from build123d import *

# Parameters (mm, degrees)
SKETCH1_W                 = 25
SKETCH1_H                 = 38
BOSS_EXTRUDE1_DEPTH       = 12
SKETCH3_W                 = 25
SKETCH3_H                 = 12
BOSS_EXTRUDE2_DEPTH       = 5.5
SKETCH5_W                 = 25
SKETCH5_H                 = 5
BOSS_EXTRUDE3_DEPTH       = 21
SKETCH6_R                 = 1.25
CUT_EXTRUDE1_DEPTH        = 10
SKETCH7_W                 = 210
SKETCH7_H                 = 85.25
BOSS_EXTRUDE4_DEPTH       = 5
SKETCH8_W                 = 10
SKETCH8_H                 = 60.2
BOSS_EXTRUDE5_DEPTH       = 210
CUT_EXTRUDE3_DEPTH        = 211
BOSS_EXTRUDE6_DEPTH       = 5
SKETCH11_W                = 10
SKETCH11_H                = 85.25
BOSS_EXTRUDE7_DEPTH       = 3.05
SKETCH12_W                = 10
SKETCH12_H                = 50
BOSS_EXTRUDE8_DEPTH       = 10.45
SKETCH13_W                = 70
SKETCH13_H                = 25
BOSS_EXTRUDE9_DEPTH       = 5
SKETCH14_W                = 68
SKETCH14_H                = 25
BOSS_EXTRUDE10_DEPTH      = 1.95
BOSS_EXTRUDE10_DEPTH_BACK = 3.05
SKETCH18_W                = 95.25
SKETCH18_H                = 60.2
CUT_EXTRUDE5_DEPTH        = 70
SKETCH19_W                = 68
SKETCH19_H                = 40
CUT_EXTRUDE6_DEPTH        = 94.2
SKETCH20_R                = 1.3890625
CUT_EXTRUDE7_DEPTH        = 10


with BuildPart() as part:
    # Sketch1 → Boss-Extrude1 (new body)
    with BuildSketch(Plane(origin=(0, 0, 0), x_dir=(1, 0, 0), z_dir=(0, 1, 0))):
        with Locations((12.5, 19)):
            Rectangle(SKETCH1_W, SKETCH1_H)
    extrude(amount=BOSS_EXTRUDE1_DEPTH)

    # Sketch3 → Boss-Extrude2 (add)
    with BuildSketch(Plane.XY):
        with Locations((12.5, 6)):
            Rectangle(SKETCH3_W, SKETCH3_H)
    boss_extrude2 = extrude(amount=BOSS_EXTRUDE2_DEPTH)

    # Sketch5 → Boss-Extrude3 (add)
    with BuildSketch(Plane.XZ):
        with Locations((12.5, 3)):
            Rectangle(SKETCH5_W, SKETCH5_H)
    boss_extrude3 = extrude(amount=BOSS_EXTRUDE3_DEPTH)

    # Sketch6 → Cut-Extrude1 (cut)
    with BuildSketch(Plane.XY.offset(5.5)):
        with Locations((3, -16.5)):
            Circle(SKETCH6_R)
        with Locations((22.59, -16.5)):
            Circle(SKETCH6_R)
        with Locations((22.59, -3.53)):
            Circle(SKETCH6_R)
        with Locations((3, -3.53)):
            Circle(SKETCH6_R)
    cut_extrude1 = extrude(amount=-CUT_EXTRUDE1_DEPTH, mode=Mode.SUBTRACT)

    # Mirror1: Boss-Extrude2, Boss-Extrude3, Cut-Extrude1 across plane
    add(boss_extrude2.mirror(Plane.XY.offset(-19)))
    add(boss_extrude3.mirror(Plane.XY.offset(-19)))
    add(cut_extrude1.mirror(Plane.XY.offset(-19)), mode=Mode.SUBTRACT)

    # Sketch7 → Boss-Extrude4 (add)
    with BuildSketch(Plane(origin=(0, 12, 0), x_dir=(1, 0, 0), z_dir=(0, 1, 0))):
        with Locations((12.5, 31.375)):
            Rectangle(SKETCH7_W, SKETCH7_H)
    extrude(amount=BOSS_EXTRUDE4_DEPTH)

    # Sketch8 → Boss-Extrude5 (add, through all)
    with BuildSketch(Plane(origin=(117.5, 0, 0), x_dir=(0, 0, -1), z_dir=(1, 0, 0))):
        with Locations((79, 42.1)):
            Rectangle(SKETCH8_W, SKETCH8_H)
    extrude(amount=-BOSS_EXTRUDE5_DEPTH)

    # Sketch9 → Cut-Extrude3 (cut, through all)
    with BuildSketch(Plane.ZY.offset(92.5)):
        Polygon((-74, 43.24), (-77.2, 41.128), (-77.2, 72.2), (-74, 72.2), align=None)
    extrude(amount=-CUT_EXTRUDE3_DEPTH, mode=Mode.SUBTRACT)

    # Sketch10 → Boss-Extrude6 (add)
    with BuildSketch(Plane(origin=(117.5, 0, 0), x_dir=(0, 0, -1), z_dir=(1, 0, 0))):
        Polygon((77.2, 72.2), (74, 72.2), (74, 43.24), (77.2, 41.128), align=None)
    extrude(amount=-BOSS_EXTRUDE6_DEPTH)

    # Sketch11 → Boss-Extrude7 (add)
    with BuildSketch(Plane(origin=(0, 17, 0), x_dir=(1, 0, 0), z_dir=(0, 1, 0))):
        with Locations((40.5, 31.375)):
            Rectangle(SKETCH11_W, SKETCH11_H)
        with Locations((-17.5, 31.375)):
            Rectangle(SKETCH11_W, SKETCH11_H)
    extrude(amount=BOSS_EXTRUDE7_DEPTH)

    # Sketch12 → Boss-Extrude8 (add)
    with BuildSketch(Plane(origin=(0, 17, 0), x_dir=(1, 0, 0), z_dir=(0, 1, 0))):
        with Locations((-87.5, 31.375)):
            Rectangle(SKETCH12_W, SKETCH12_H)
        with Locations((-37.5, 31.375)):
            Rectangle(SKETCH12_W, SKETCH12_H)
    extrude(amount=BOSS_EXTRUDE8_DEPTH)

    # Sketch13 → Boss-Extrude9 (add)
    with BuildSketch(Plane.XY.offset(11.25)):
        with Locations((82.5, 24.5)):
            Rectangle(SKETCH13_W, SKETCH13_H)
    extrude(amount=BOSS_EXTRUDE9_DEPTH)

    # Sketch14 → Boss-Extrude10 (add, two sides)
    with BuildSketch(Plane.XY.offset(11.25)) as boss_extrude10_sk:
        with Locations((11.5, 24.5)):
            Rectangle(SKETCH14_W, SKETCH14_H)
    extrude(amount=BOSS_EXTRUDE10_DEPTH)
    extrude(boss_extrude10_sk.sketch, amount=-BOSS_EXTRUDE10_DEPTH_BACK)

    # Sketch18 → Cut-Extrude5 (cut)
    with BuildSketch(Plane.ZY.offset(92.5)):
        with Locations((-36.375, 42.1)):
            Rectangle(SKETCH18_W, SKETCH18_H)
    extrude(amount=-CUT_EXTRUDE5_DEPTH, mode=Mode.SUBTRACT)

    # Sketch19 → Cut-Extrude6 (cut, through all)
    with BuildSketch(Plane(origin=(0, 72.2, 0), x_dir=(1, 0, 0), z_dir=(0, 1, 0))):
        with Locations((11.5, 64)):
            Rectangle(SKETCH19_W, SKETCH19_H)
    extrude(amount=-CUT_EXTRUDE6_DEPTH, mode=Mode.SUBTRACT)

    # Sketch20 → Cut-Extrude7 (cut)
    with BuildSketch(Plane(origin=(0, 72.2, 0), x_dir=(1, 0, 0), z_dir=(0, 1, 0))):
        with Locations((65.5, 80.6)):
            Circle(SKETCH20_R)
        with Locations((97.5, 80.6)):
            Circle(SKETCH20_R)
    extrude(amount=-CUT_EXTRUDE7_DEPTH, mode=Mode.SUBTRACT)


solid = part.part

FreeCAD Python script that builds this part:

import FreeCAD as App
import Part
import Sketcher

V = App.Vector
Q = App.Units.Quantity


def add_polygon(sketch, points):
    """Adds a closed chain of lines whose ends are joined by coincident constraints."""
    first, n = sketch.GeometryCount, len(points)
    for a, b in zip(points, points[1:] + points[:1]):
        sketch.addGeometry(Part.LineSegment(App.Vector(*a, 0), App.Vector(*b, 0)), False)
    for i in range(n):
        sketch.addConstraint(Sketcher.Constraint("Coincident", first + i, 2, first + (i + 1) % n, 1))

doc = App.newDocument("Part")
body = doc.addObject("PartDesign::Body", "Body")

# Sketch on XZ plane
sketch1 = body.newObject("Sketcher::SketchObject", "Sketch")
sketch1.AttachmentSupport = (doc.getObject("XZ_Plane"), [""])
sketch1.MapMode = "FlatFace"
add_polygon(sketch1, [(0, -38), (0, 0), (25, 0), (25, -38)])  # lines 0-3
sketch1.addConstraint([
    Sketcher.Constraint("Vertical", 0),
    Sketcher.Constraint("Horizontal", 1),
    Sketcher.Constraint("Vertical", 2),
    Sketcher.Constraint("Horizontal", 3),
    Sketcher.Constraint("Coincident", 0, 2, -1, 1),
    Sketcher.Constraint("DistanceX", 1, 1, 1, 2, Q("25 mm")),
    Sketcher.Constraint("DistanceY", 0, 1, 0, 2, Q("38 mm")),
])
pad1 = body.newObject("PartDesign::Pad", "Pad")
pad1.Profile = sketch1
pad1.Length = 12
pad1.Reversed = True

# Sketch on XY plane
sketch2 = body.newObject("Sketcher::SketchObject", "Sketch001")
sketch2.AttachmentSupport = (doc.getObject("XY_Plane"), [""])
sketch2.MapMode = "FlatFace"
add_polygon(sketch2, [(0, 12), (0, 0), (25, 0), (25, 12)])  # lines 0-3
sketch2.addConstraint([
    Sketcher.Constraint("Vertical", 0),
    Sketcher.Constraint("Horizontal", 1),
    Sketcher.Constraint("Vertical", 2),
    Sketcher.Constraint("Horizontal", 3),
    Sketcher.Constraint("Coincident", 0, 2, -1, 1),
    Sketcher.Constraint("DistanceX", 1, 1, 1, 2, Q("25 mm")),
    Sketcher.Constraint("DistanceY", 0, 2, 0, 1, Q("12 mm")),
])
pad2 = body.newObject("PartDesign::Pad", "Pad001")
pad2.Profile = sketch2
pad2.Length = 5.5

# Sketch on XZ plane
sketch3 = body.newObject("Sketcher::SketchObject", "Sketch002")
sketch3.AttachmentSupport = (doc.getObject("XZ_Plane"), [""])
sketch3.MapMode = "FlatFace"
add_polygon(sketch3, [(0, 6), (0, 0), (25, 0), (25, 6)])  # lines 0-3
sketch3.addConstraint([
    Sketcher.Constraint("Vertical", 0),
    Sketcher.Constraint("Horizontal", 1),
    Sketcher.Constraint("Vertical", 2),
    Sketcher.Constraint("Horizontal", 3),
    Sketcher.Constraint("PointOnObject", 0, 2, -2),
    Sketcher.Constraint("DistanceX", 1, 1, 1, 2, Q("25 mm")),
    Sketcher.Constraint("DistanceY", 0, 2, 0, 1, Q("5 mm")),
    Sketcher.Constraint("DistanceY", -1, 1, 0, 2, Q("0.5 mm")),
])
pad3 = body.newObject("PartDesign::Pad", "Pad002")
pad3.Profile = sketch3
pad3.Length = 21

# Sketch on XY plane
sketch4 = body.newObject("Sketcher::SketchObject", "Sketch003")
sketch4.AttachmentSupport = (doc.getObject("XY_Plane"), [""])
sketch4.MapMode = "FlatFace"
sketch4.AttachmentOffset = App.Placement(V(0, 0, 5.5), App.Rotation())
sketch4.addGeometry([
    Part.Circle(V(3, -16.5, 0), V(0, 0, 1), 1.2),
    Part.Circle(V(22.6, -16.5, 0), V(0, 0, 1), 1.2),
    Part.Circle(V(22.6, -3.5, 0), V(0, 0, 1), 1.2),
    Part.Circle(V(3, -3.5, 0), V(0, 0, 1), 1.2),
], False)
sketch4.addConstraint([
    Sketcher.Constraint("Equal", 0, 1),
    Sketcher.Constraint("Equal", 1, 2),
    Sketcher.Constraint("Equal", 2, 3),
    Sketcher.Constraint("Horizontal", 0, 3, 1, 3),
    Sketcher.Constraint("Horizontal", 2, 3, 3, 3),
    Sketcher.Constraint("Vertical", 1, 3, 2, 3),
    Sketcher.Constraint("Vertical", 0, 3, 3, 3),
    Sketcher.Constraint("Diameter", 0, Q("2.5 mm")),
    Sketcher.Constraint("DistanceX", -1, 1, 0, 3, Q("3 mm")),
    Sketcher.Constraint("DistanceY", 0, 3, -1, 1, Q("16.5 mm")),
    Sketcher.Constraint("DistanceX", -1, 1, 1, 3, Q("22.59 mm")),
    Sketcher.Constraint("DistanceY", 2, 3, -1, 1, Q("3.53 mm")),
])
pocket1 = body.newObject("PartDesign::Pocket", "Pocket")
pocket1.Profile = sketch4
pocket1.Length = 10
doc.recompute()

datumplane = body.newObject("PartDesign::Plane", "DatumPlane")
datumplane.AttachmentSupport = (doc.getObject("XY_Plane"), [""])
datumplane.MapMode = "FlatFace"
datumplane.AttachmentOffset = App.Placement(V(0, 0, -19), App.Rotation())
mirrored = body.newObject("PartDesign::Mirrored", "Mirrored")
mirrored.Originals = [pad2, pad3, pocket1]
mirrored.MirrorPlane = (datumplane, [""])
body.Tip = mirrored

# Sketch on XZ plane
sketch5 = body.newObject("Sketcher::SketchObject", "Sketch004")
sketch5.AttachmentSupport = (doc.getObject("XZ_Plane"), [""])
sketch5.MapMode = "FlatFace"
sketch5.AttachmentOffset = App.Placement(V(0, 0, -12), App.Rotation())
add_polygon(sketch5, [(-92, -74), (-92, 11), (118, 11), (118, -74)])  # lines 0-3
sketch5.addConstraint([
    Sketcher.Constraint("Vertical", 0),
    Sketcher.Constraint("Horizontal", 1),
    Sketcher.Constraint("Vertical", 2),
    Sketcher.Constraint("Horizontal", 3),
    Sketcher.Constraint("DistanceX", 1, 1, 1, 2, Q("210 mm")),
    Sketcher.Constraint("DistanceY", 2, 2, -1, 1, Q("74 mm")),
    Sketcher.Constraint("DistanceY", 0, 1, 0, 2, Q("85.25 mm")),
    Sketcher.Constraint("DistanceX", 0, 2, -1, 1, Q("92.5 mm")),
])
pad4 = body.newObject("PartDesign::Pad", "Pad003")
pad4.Profile = sketch5
pad4.Length = 5
pad4.Reversed = True

# Sketch on YZ plane
sketch6 = body.newObject("Sketcher::SketchObject", "Sketch005")
sketch6.AttachmentSupport = (doc.getObject("YZ_Plane"), [""])
sketch6.MapMode = "FlatFace"
sketch6.AttachmentOffset = App.Placement(V(0, 0, 117.5), App.Rotation())
add_polygon(sketch6, [(72, -74), (12, -74), (12, -84), (72, -84)])  # lines 0-3
sketch6.addConstraint([
    Sketcher.Constraint("Horizontal", 0),
    Sketcher.Constraint("Vertical", 1),
    Sketcher.Constraint("Horizontal", 2),
    Sketcher.Constraint("Vertical", 3),
    Sketcher.Constraint("DistanceY", 1, 2, 1, 1, Q("10 mm")),
    Sketcher.Constraint("DistanceX", 0, 2, 0, 1, Q("60.2 mm")),
    Sketcher.Constraint("DistanceX", -1, 1, 0, 2, Q("12 mm")),
    Sketcher.Constraint("DistanceY", 0, 2, -1, 1, Q("74 mm")),
])
pad5 = body.newObject("PartDesign::Pad", "Pad004")
pad5.Profile = sketch6
pad5.Length = 210
pad5.Reversed = True

# Sketch on YZ plane
sketch7 = body.newObject("Sketcher::SketchObject", "Sketch006")
sketch7.AttachmentSupport = (doc.getObject("YZ_Plane"), [""])
sketch7.MapMode = "FlatFace"
sketch7.AttachmentOffset = App.Placement(V(0, 0, -92.5), App.Rotation())
add_polygon(sketch7, [(41.1, -77.2), (43.2, -74), (72.2, -74), (72.2, -77.2)])  # lines 0-3
sketch7.addConstraint([
    Sketcher.Constraint("Horizontal", 1),
    Sketcher.Constraint("Vertical", 2),
    Sketcher.Constraint("Horizontal", 3),
    Sketcher.Constraint("DistanceY", 2, 2, 2, 1, Q("3.2 mm")),
    Sketcher.Constraint("DistanceY", 0, 2, -1, 1, Q("74 mm")),
    Sketcher.Constraint("DistanceX", 1, 1, 1, 2, Q("28.96 mm")),
    Sketcher.Constraint("DistanceX", -1, 1, 1, 2, Q("72.2 mm")),
    Sketcher.Constraint("DistanceX", 3, 2, 3, 1, Q("31.072 mm")),
])
pocket2 = body.newObject("PartDesign::Pocket", "Pocket001")
pocket2.Profile = sketch7
pocket2.Type = "ThroughAll"
pocket2.Reversed = True

# Sketch on YZ plane
sketch8 = body.newObject("Sketcher::SketchObject", "Sketch007")
sketch8.AttachmentSupport = (doc.getObject("YZ_Plane"), [""])
sketch8.MapMode = "FlatFace"
sketch8.AttachmentOffset = App.Placement(V(0, 0, 117.5), App.Rotation())
add_polygon(sketch8, [(72.2, -77.2), (72.2, -74), (43.2, -74), (41.1, -77.2)])  # lines 0-3
sketch8.addConstraint([
    Sketcher.Constraint("Vertical", 0),
    Sketcher.Constraint("Horizontal", 1),
    Sketcher.Constraint("Horizontal", 3),
    Sketcher.Constraint("DistanceY", 0, 1, 0, 2, Q("3.2 mm")),
    Sketcher.Constraint("DistanceY", 0, 2, -1, 1, Q("74 mm")),
    Sketcher.Constraint("DistanceX", 1, 2, 1, 1, Q("28.96 mm")),
    Sketcher.Constraint("DistanceX", -1, 1, 0, 2, Q("72.2 mm")),
    Sketcher.Constraint("DistanceX", 3, 1, 3, 2, Q("31.072 mm")),
])
pad6 = body.newObject("PartDesign::Pad", "Pad005")
pad6.Profile = sketch8
pad6.Length = 5
pad6.Reversed = True

# Sketch on XZ plane
sketch9 = body.newObject("Sketcher::SketchObject", "Sketch008")
sketch9.AttachmentSupport = (doc.getObject("XZ_Plane"), [""])
sketch9.MapMode = "FlatFace"
sketch9.AttachmentOffset = App.Placement(V(0, 0, -17), App.Rotation())
add_polygon(sketch9, [(36, -74), (36, 11), (46, 11), (46, -74)])  # lines 0-3
add_polygon(sketch9, [(-22, -74), (-22, 11), (-12, 11), (-12, -74)])  # lines 4-7
sketch9.addConstraint([
    Sketcher.Constraint("Vertical", 0),
    Sketcher.Constraint("Horizontal", 1),
    Sketcher.Constraint("Vertical", 2),
    Sketcher.Constraint("Horizontal", 3),
    Sketcher.Constraint("Vertical", 4),
    Sketcher.Constraint("Horizontal", 5),
    Sketcher.Constraint("Vertical", 6),
    Sketcher.Constraint("Horizontal", 7),
    Sketcher.Constraint("Horizontal", 1, 2, 4, 2),
    Sketcher.Constraint("Horizontal", 3, 2, 6, 2),
    Sketcher.Constraint("Equal", 3, 5),
    Sketcher.Constraint("DistanceX", 1, 1, 1, 2, Q("10 mm")),
    Sketcher.Constraint("DistanceY", 2, 2, -1, 1, Q("74 mm")),
    Sketcher.Constraint("DistanceX", 4, 2, 0, 2, Q("58 mm")),
    Sketcher.Constraint("DistanceY", 0, 1, 0, 2, Q("85.25 mm")),
    Sketcher.Constraint("DistanceX", -1, 1, 0, 2, Q("35.5 mm")),
])
pad7 = body.newObject("PartDesign::Pad", "Pad006")
pad7.Profile = sketch9
pad7.Length = 3.05
pad7.Reversed = True

# Sketch on XZ plane
sketch10 = body.newObject("Sketcher::SketchObject", "Sketch009")
sketch10.AttachmentSupport = (doc.getObject("XZ_Plane"), [""])
sketch10.MapMode = "FlatFace"
sketch10.AttachmentOffset = App.Placement(V(0, 0, -17), App.Rotation())
add_polygon(sketch10, [(-92, -56), (-92, -6), (-82, -6), (-82, -56)])  # lines 0-3
add_polygon(sketch10, [(-42, -56), (-42, -6), (-32, -6), (-32, -56)])  # lines 4-7
sketch10.addConstraint([
    Sketcher.Constraint("Vertical", 0),
    Sketcher.Constraint("Horizontal", 1),
    Sketcher.Constraint("Vertical", 2),
    Sketcher.Constraint("Horizontal", 3),
    Sketcher.Constraint("Vertical", 4),
    Sketcher.Constraint("Horizontal", 5),
    Sketcher.Constraint("Vertical", 6),
    Sketcher.Constraint("Horizontal", 7),
    Sketcher.Constraint("Horizontal", 1, 2, 4, 2),
    Sketcher.Constraint("Horizontal", 3, 2, 6, 2),
    Sketcher.Constraint("Equal", 3, 5),
    Sketcher.Constraint("DistanceX", 1, 1, 1, 2, Q("10 mm")),
    Sketcher.Constraint("DistanceY", 0, 1, 0, 2, Q("50 mm")),
    Sketcher.Constraint("DistanceX", 1, 2, 4, 2, Q("40 mm")),
    Sketcher.Constraint("DistanceX", 0, 2, -1, 1, Q("92.5 mm")),
    Sketcher.Constraint("DistanceY", 0, 2, -1, 1, Q("6.375 mm")),
])
pad8 = body.newObject("PartDesign::Pad", "Pad007")
pad8.Profile = sketch10
pad8.Length = 10.45
pad8.Reversed = True

# Sketch on XY plane
sketch11 = body.newObject("Sketcher::SketchObject", "Sketch010")
sketch11.AttachmentSupport = (doc.getObject("XY_Plane"), [""])
sketch11.MapMode = "FlatFace"
sketch11.AttachmentOffset = App.Placement(V(0, 0, 11.25), App.Rotation())
add_polygon(sketch11, [(48, 37), (48, 12), (118, 12), (118, 37)])  # lines 0-3
sketch11.addConstraint([
    Sketcher.Constraint("Vertical", 0),
    Sketcher.Constraint("Horizontal", 1),
    Sketcher.Constraint("Vertical", 2),
    Sketcher.Constraint("Horizontal", 3),
    Sketcher.Constraint("DistanceX", 1, 1, 1, 2, Q("70 mm")),
    Sketcher.Constraint("DistanceY", 0, 2, 0, 1, Q("25 mm")),
    Sketcher.Constraint("DistanceY", -1, 1, 0, 2, Q("12 mm")),
    Sketcher.Constraint("DistanceX", -1, 1, 0, 2, Q("47.5 mm")),
])
pad9 = body.newObject("PartDesign::Pad", "Pad008")
pad9.Profile = sketch11
pad9.Length = 5

# Sketch on XY plane
sketch12 = body.newObject("Sketcher::SketchObject", "Sketch011")
sketch12.AttachmentSupport = (doc.getObject("XY_Plane"), [""])
sketch12.MapMode = "FlatFace"
sketch12.AttachmentOffset = App.Placement(V(0, 0, 11.25), App.Rotation())
add_polygon(sketch12, [(-22, 37), (-22, 12), (46, 12), (46, 37)])  # lines 0-3
sketch12.addConstraint([
    Sketcher.Constraint("Vertical", 0),
    Sketcher.Constraint("Horizontal", 1),
    Sketcher.Constraint("Vertical", 2),
    Sketcher.Constraint("Horizontal", 3),
    Sketcher.Constraint("DistanceX", 1, 1, 1, 2, Q("68 mm")),
    Sketcher.Constraint("DistanceY", 0, 2, 0, 1, Q("25 mm")),
    Sketcher.Constraint("DistanceY", -1, 1, 0, 2, Q("12 mm")),
    Sketcher.Constraint("DistanceX", 0, 2, -1, 1, Q("22.5 mm")),
])
pad10 = body.newObject("PartDesign::Pad", "Pad009")
pad10.Profile = sketch12
pad10.Type = "TwoLengths"
pad10.Length = 1.95
pad10.Length2 = 3.05

# Sketch on YZ plane
sketch13 = body.newObject("Sketcher::SketchObject", "Sketch012")
sketch13.AttachmentSupport = (doc.getObject("YZ_Plane"), [""])
sketch13.MapMode = "FlatFace"
sketch13.AttachmentOffset = App.Placement(V(0, 0, -92.5), App.Rotation())
add_polygon(sketch13, [(72, -84), (12, -84), (12, 11), (72, 11)])  # lines 0-3
sketch13.addConstraint([
    Sketcher.Constraint("Horizontal", 0),
    Sketcher.Constraint("Vertical", 1),
    Sketcher.Constraint("Horizontal", 2),
    Sketcher.Constraint("Vertical", 3),
    Sketcher.Constraint("DistanceX", 0, 2, 0, 1, Q("60.2 mm")),
    Sketcher.Constraint("DistanceX", -1, 1, 0, 2, Q("12 mm")),
    Sketcher.Constraint("DistanceY", 0, 2, -1, 1, Q("84 mm")),
    Sketcher.Constraint("DistanceY", 1, 1, 1, 2, Q("95.25 mm")),
])
pocket3 = body.newObject("PartDesign::Pocket", "Pocket002")
pocket3.Profile = sketch13
pocket3.Length = 70
pocket3.Reversed = True

# Sketch on XZ plane
sketch14 = body.newObject("Sketcher::SketchObject", "Sketch013")
sketch14.AttachmentSupport = (doc.getObject("XZ_Plane"), [""])
sketch14.MapMode = "FlatFace"
sketch14.AttachmentOffset = App.Placement(V(0, 0, -72.2), App.Rotation())
add_polygon(sketch14, [(-22, -84), (-22, -44), (46, -44), (46, -84)])  # lines 0-3
sketch14.addConstraint([
    Sketcher.Constraint("Vertical", 0),
    Sketcher.Constraint("Horizontal", 1),
    Sketcher.Constraint("Vertical", 2),
    Sketcher.Constraint("Horizontal", 3),
    Sketcher.Constraint("DistanceX", 1, 1, 1, 2, Q("68 mm")),
    Sketcher.Constraint("DistanceY", 0, 1, 0, 2, Q("40 mm")),
    Sketcher.Constraint("DistanceY", 0, 2, -1, 1, Q("44 mm")),
    Sketcher.Constraint("DistanceX", 0, 2, -1, 1, Q("22.5 mm")),
])
pocket4 = body.newObject("PartDesign::Pocket", "Pocket003")
pocket4.Profile = sketch14
pocket4.Type = "ThroughAll"
pocket4.Reversed = True

# Sketch on XZ plane
sketch15 = body.newObject("Sketcher::SketchObject", "Sketch014")
sketch15.AttachmentSupport = (doc.getObject("XZ_Plane"), [""])
sketch15.MapMode = "FlatFace"
sketch15.AttachmentOffset = App.Placement(V(0, 0, -72.2), App.Rotation())
sketch15.addGeometry([
    Part.Circle(V(65.5, -80.6, 0), V(0, 0, 1), 1.4),
    Part.Circle(V(97.5, -80.6, 0), V(0, 0, 1), 1.4),
], False)
sketch15.addConstraint([
    Sketcher.Constraint("Equal", 0, 1),
    Sketcher.Constraint("Horizontal", 0, 3, 1, 3),
    Sketcher.Constraint("DistanceX", 0, 3, 1, 3, Q("32 mm")),
    Sketcher.Constraint("DistanceX", -1, 1, 0, 3, Q("65.5 mm")),
    Sketcher.Constraint("DistanceY", 0, 3, -1, 1, Q("80.6 mm")),
    Sketcher.Constraint("Diameter", 0, Q("2.778125 mm")),
])
pocket5 = body.newObject("PartDesign::Pocket", "Pocket004")
pocket5.Profile = sketch15
pocket5.Length = 10
pocket5.Reversed = True

doc.recompute()
